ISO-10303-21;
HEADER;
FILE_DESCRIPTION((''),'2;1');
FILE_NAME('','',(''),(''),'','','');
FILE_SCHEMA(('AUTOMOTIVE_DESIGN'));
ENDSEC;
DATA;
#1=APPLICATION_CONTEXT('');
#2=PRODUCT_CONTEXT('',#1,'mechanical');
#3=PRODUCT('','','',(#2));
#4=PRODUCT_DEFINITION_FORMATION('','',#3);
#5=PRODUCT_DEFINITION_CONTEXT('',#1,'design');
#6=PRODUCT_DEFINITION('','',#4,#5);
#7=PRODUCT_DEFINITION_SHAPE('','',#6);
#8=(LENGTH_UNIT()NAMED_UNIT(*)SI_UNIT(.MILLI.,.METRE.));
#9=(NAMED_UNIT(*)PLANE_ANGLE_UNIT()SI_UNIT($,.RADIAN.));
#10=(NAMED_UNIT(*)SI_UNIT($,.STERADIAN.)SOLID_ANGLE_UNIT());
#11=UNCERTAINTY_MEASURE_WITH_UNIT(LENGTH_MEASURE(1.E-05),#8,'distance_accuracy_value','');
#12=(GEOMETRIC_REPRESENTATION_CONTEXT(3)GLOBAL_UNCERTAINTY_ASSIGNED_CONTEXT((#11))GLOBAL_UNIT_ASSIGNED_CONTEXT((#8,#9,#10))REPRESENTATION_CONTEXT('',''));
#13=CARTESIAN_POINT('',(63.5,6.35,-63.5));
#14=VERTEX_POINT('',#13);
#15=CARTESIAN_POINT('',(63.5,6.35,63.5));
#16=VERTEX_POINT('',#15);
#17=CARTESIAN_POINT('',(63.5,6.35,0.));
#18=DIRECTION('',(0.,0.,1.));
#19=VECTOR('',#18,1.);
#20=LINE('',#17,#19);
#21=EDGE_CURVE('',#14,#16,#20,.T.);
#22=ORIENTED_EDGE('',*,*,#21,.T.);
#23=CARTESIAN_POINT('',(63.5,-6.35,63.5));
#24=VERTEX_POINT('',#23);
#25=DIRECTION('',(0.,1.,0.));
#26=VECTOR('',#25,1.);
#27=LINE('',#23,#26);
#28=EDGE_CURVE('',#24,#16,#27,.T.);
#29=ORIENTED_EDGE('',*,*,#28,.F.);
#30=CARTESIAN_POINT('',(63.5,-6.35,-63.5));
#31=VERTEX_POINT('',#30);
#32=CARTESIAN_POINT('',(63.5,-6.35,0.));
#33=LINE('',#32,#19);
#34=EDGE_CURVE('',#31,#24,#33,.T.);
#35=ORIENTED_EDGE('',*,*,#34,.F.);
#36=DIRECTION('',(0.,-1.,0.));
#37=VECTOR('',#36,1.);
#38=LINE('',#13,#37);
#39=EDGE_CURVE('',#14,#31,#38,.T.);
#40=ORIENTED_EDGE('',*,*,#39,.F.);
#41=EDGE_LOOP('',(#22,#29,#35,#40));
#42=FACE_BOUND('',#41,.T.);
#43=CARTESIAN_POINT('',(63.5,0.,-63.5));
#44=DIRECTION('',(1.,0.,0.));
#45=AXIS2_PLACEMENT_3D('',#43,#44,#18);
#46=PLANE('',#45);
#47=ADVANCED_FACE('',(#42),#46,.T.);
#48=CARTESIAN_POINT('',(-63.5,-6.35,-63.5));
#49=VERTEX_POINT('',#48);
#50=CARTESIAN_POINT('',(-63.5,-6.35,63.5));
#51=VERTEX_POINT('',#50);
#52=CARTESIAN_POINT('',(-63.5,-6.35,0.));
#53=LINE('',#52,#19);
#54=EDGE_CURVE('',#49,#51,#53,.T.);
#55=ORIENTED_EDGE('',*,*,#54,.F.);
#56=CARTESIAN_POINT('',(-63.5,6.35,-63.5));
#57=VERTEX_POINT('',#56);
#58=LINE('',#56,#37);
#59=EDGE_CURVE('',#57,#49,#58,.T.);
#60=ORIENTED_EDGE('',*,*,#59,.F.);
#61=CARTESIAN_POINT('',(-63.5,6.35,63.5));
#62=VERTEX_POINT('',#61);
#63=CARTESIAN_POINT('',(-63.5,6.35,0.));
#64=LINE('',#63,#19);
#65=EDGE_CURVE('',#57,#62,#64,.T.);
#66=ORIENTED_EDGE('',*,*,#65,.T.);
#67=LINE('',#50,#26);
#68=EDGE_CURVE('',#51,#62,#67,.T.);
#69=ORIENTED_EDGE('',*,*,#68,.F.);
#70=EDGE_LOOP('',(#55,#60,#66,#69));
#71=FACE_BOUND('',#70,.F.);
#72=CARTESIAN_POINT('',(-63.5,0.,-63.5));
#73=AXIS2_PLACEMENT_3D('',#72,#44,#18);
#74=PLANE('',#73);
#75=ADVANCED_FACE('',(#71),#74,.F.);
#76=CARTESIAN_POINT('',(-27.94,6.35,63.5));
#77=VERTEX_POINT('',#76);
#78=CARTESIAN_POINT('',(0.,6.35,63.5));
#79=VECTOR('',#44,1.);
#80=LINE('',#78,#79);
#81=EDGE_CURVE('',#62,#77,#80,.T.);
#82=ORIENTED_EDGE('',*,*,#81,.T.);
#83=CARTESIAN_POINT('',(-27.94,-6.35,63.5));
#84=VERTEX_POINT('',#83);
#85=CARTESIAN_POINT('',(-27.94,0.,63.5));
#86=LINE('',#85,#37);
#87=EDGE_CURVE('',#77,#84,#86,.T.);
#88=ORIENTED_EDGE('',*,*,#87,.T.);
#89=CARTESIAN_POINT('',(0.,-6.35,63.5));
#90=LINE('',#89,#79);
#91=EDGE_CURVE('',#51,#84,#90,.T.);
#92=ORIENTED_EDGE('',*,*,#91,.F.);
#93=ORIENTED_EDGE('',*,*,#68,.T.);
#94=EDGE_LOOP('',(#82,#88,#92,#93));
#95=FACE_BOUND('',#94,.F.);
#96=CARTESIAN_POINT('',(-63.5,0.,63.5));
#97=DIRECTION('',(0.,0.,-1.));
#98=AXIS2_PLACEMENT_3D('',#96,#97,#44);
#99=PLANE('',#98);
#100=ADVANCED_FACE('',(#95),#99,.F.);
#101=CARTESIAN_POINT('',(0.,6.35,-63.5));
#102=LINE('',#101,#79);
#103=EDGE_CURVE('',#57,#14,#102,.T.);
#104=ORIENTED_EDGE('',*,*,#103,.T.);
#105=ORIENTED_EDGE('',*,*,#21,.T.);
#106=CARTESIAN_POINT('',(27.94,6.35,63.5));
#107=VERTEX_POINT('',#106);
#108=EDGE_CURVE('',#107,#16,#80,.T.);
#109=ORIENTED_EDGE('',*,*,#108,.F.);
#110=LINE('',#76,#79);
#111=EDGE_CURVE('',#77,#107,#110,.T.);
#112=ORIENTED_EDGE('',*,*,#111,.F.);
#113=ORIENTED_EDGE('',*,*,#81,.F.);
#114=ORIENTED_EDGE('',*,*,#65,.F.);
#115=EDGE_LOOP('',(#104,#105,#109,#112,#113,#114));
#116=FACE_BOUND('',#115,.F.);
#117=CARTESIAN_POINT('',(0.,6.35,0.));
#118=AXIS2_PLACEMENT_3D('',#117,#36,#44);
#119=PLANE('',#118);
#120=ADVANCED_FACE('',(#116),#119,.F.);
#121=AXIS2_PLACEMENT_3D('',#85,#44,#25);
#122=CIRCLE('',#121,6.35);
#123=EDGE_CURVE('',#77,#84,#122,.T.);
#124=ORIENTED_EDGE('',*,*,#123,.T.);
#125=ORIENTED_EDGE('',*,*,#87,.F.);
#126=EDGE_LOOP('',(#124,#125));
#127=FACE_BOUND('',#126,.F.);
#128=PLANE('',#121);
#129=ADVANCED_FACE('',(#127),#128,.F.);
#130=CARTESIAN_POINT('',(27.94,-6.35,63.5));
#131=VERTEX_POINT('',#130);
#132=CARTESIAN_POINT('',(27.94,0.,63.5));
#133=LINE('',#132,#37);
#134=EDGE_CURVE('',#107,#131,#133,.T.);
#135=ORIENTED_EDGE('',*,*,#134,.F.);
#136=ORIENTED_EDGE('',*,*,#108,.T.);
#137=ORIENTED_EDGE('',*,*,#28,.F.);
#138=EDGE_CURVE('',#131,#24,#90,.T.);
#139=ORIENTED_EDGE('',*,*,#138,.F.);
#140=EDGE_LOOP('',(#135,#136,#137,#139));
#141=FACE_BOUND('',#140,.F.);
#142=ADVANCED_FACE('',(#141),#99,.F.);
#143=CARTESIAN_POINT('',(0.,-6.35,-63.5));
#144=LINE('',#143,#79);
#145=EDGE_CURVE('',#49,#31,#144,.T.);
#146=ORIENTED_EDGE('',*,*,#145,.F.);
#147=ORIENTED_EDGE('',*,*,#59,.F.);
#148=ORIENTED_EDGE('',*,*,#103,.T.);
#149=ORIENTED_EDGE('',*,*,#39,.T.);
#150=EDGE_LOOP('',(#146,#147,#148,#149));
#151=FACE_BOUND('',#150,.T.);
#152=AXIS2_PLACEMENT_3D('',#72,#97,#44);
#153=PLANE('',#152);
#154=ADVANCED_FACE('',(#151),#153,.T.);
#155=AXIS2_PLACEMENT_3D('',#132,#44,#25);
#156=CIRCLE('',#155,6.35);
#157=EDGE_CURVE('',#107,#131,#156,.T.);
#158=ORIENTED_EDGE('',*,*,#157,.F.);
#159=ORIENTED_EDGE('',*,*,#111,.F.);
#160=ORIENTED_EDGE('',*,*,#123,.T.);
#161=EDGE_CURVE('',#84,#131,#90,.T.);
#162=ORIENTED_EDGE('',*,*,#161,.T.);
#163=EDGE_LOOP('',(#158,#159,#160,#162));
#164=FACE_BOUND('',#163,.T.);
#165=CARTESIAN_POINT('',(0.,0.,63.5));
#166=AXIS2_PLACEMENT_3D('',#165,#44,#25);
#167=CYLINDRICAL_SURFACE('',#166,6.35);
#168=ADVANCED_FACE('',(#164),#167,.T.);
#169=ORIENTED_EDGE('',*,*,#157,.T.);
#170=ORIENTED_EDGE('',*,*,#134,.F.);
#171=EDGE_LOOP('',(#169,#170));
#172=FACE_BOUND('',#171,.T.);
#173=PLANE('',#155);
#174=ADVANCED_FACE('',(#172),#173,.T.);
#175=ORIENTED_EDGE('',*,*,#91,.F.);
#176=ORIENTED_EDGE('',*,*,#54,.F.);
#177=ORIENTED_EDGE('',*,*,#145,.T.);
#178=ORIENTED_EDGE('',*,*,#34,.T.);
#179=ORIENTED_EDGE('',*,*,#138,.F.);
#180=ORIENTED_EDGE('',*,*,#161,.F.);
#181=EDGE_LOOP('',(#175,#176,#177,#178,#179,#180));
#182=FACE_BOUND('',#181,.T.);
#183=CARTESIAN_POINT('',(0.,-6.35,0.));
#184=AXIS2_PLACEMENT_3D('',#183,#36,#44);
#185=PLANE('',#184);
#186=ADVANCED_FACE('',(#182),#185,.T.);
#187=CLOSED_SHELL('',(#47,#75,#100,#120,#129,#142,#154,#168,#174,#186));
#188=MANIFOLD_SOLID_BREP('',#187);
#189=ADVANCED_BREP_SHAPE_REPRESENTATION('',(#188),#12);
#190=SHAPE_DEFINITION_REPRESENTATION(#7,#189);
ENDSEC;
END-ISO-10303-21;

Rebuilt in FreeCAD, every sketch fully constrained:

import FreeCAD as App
import Part
import Sketcher
Q = App.Units.Quantity


def add_polygon(sketch, points):
    """Adds a closed chain of lines whose ends are joined by coincident constraints."""
    first, n = sketch.GeometryCount, len(points)
    for a, b in zip(points, points[1:] + points[:1]):
        sketch.addGeometry(Part.LineSegment(App.Vector(*a, 0), App.Vector(*b, 0)), False)
    for i in range(n):
        sketch.addConstraint(Sketcher.Constraint("Coincident", first + i, 2, first + (i + 1) % n, 1))

doc = App.newDocument("Part")
params = doc.addObject("Spreadsheet::Sheet", "Params")
for row, (alias, value) in enumerate([
    ("sketch1_width", "5 in"),
    ("pad1_length", "0.5 in"),
    ("sketch2_diameter", "0.5 in"),
    ("pad2_length", "2.2 in"),
], start=1):
    params.set(f"A{row}", alias)
    params.set(f"B{row}", "=" + value)
    params.setAlias(f"B{row}", alias)

body = doc.addObject("PartDesign::Body", "Body")

sketch1 = body.newObject("Sketcher::SketchObject", "Sketch")
sketch1.AttachmentSupport = (doc.getObject("XZ_Plane"), [""])
sketch1.MapMode = "FlatFace"
add_polygon(sketch1, [(-64, 64), (-64, -64), (64, -64), (64, 64)])
sketch1.addConstraint(Sketcher.Constraint("Vertical", 0))
sketch1.addConstraint(Sketcher.Constraint("Horizontal", 1))
sketch1.addConstraint(Sketcher.Constraint("Vertical", 2))
sketch1.addConstraint(Sketcher.Constraint("Horizontal", 3))
sketch1.addConstraint(Sketcher.Constraint("Symmetric", 0, 2, 2, 2, -1, 1))
sketch1.addConstraint(Sketcher.Constraint("Equal", 3, 0))
sketch1.addConstraint(Sketcher.Constraint("DistanceX", 1, 1, 1, 2, Q("5 in")))
sketch1.setExpression("Constraints[10]", "Params.sketch1_width")
pad1 = body.newObject("PartDesign::Pad", "Pad")
pad1.Profile = sketch1
pad1.setExpression("Length", "Params.pad1_length")
pad1.Midplane = True

sketch2 = body.newObject("Sketcher::SketchObject", "Sketch001")
sketch2.AttachmentSupport = (doc.getObject("YZ_Plane"), [""])
sketch2.MapMode = "FlatFace"
sketch2.addGeometry(Part.Circle(App.Vector(0, 64, 0), App.Vector(0, 0, 1), 6), False)
sketch2.addConstraint(Sketcher.Constraint("PointOnObject", 0, 3, -2))
sketch2.addConstraint(Sketcher.Constraint("Diameter", 0, Q("0.5 in")))
sketch2.addConstraint(Sketcher.Constraint("DistanceY", -1, 1, 0, 3, Q("2.5 in")))
sketch2.setExpression("Constraints[1]", "Params.sketch2_diameter")
pad2 = body.newObject("PartDesign::Pad", "Pad001")
pad2.Profile = sketch2
pad2.setExpression("Length", "Params.pad2_length")
pad2.Midplane = True

doc.recompute()
